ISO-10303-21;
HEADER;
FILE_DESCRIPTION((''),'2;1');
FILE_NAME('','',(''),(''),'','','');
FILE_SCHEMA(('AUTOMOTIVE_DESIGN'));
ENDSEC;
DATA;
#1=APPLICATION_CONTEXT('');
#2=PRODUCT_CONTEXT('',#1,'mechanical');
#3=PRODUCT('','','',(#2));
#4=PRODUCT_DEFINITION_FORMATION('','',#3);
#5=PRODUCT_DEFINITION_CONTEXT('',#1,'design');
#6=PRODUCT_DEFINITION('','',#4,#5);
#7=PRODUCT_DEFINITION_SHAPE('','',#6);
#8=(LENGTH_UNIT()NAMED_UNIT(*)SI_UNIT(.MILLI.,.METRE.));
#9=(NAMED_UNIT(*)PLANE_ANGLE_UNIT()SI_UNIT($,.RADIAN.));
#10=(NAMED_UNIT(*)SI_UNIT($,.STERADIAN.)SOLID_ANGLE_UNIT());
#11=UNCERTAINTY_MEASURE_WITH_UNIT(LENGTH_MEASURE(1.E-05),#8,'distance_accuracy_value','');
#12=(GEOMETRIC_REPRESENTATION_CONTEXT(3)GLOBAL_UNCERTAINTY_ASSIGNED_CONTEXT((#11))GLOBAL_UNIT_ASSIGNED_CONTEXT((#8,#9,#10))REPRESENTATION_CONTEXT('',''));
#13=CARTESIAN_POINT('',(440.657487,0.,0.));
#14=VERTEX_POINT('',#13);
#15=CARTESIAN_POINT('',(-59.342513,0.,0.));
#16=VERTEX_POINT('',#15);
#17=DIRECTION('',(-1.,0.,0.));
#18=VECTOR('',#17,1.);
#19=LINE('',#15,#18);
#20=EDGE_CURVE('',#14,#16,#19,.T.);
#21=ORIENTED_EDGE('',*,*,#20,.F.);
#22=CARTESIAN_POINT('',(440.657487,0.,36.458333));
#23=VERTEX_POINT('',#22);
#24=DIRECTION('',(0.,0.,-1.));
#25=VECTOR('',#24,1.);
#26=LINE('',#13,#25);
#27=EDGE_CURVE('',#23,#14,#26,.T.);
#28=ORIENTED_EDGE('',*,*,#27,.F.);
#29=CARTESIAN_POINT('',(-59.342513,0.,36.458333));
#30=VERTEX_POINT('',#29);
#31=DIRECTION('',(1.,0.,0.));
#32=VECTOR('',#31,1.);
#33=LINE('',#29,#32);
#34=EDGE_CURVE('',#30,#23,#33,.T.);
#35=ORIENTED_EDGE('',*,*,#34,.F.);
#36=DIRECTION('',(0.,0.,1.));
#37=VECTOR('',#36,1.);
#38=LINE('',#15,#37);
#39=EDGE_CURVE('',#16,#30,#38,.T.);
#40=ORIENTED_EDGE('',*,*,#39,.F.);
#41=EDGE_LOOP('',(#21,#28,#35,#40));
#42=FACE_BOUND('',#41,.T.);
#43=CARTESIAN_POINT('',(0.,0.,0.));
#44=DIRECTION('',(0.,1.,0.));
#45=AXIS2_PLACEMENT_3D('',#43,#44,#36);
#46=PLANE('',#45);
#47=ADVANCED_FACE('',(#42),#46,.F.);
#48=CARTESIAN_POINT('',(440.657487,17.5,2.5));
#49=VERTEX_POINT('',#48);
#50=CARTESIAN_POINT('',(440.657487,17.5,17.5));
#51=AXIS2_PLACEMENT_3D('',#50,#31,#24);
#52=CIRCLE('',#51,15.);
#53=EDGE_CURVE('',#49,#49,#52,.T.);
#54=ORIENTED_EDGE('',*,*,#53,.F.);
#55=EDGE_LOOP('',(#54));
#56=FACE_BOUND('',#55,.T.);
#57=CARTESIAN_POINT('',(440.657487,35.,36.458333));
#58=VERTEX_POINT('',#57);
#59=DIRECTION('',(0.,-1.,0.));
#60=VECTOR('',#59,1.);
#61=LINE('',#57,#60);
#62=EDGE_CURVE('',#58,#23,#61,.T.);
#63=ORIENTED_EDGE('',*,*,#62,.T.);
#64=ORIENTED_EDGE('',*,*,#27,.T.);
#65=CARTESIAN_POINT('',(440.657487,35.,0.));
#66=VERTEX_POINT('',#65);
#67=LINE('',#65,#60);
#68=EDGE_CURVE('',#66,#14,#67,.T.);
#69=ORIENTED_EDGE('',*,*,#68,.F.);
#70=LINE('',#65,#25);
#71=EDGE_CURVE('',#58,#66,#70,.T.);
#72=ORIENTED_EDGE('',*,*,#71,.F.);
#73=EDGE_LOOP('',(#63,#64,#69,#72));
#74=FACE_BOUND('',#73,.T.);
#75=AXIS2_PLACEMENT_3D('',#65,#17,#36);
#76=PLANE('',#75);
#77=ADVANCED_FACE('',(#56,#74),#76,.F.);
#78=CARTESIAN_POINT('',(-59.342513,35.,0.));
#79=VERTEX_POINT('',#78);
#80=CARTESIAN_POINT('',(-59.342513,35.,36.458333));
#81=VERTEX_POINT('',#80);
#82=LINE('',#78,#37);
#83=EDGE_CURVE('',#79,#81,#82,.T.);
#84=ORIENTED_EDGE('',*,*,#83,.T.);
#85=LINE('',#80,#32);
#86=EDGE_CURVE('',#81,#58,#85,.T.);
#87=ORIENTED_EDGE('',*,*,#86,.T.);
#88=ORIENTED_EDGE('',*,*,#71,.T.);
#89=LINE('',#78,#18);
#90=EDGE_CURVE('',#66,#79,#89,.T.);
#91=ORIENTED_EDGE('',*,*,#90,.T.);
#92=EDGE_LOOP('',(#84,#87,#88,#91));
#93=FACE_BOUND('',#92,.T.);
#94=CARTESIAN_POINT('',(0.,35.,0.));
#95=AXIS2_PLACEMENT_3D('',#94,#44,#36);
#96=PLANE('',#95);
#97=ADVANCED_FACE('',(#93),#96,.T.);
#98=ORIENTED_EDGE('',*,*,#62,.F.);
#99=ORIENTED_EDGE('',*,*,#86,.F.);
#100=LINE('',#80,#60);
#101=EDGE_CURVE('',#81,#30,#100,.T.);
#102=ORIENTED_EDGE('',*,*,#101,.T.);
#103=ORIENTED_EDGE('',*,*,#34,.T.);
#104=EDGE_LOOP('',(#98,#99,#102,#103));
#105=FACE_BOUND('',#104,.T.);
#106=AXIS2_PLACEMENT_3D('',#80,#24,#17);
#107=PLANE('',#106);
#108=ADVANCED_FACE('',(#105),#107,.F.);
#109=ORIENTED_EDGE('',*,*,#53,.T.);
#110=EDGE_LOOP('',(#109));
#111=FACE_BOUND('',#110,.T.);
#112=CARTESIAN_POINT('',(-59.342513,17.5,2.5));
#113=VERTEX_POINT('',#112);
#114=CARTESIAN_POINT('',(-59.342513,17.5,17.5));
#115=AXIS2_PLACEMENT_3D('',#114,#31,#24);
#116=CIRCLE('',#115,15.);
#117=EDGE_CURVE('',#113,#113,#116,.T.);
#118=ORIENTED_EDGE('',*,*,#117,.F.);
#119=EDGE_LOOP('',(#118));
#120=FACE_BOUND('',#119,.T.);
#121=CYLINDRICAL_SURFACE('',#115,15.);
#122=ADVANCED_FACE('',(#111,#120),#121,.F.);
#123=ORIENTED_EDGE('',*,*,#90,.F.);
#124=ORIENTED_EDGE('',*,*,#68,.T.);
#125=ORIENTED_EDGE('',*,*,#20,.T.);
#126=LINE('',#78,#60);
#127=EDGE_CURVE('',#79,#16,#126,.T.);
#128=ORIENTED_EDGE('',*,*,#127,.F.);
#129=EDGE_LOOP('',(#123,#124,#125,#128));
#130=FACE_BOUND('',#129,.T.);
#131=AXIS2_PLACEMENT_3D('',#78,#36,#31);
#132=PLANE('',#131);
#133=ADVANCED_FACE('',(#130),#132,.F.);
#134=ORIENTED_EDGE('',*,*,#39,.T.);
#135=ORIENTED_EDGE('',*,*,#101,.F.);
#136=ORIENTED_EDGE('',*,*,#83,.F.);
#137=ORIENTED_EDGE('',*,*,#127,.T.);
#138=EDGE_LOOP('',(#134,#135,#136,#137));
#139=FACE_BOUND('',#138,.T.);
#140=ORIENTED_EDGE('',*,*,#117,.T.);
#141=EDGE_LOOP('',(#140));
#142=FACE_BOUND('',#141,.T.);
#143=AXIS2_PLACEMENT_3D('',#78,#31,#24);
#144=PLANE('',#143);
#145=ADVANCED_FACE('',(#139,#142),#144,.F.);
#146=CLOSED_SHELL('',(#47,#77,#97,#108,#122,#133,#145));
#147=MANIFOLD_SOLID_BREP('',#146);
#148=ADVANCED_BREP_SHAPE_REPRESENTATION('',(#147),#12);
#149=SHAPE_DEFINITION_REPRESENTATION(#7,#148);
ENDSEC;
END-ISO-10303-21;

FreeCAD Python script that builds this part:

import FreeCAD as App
import Part
import Sketcher


def add_polygon(sketch, points):
    """Adds a closed chain of lines whose ends are joined by coincident constraints."""
    first, n = sketch.GeometryCount, len(points)
    for a, b in zip(points, points[1:] + points[:1]):
        sketch.addGeometry(Part.LineSegment(App.Vector(*a, 0), App.Vector(*b, 0)), False)
    for i in range(n):
        sketch.addConstraint(Sketcher.Constraint("Coincident", first + i, 2, first + (i + 1) % n, 1))

doc = App.newDocument("Part")
body = doc.addObject("PartDesign::Body", "Body")

# Sketch on XZ plane
sketch1 = body.newObject("Sketcher::SketchObject", "Sketch")
sketch1.AttachmentSupport = (doc.getObject("XZ_Plane"), [""])
sketch1.MapMode = "FlatFace"
add_polygon(sketch1, [(-59, 0), (-59, 36), (441, 36), (441, 0)])  # lines 0-3
sketch1.addConstraint(Sketcher.Constraint("Vertical", 0))
sketch1.addConstraint(Sketcher.Constraint("Horizontal", 1))
sketch1.addConstraint(Sketcher.Constraint("Vertical", 2))
sketch1.addConstraint(Sketcher.Constraint("Horizontal", 3))
sketch1.addConstraint(Sketcher.Constraint("PointOnObject", 2, 2, -1))
sketch1.addConstraint(Sketcher.Constraint("DistanceX", 1, 1, 1, 2, 500.0))
sketch1.addConstraint(Sketcher.Constraint("DistanceY", 0, 1, 0, 2, 36.458333))
sketch1.addConstraint(Sketcher.Constraint("DistanceX", 0, 2, -1, 1, 59.342513))
pad1 = body.newObject("PartDesign::Pad", "Pad")
pad1.Profile = sketch1
pad1.Length = 35
pad1.Reversed = True

# Sketch on YZ plane
sketch2 = body.newObject("Sketcher::SketchObject", "Sketch001")
sketch2.AttachmentSupport = (doc.getObject("YZ_Plane"), [""])
sketch2.MapMode = "FlatFace"
sketch2.AttachmentOffset = App.Placement(App.Vector(0, 0, 440.657487), App.Rotation())
sketch2.addGeometry(Part.Circle(App.Vector(18, 18, 0), App.Vector(0, 0, 1), 15), False)
sketch2.addConstraint(Sketcher.Constraint("Diameter", 0, 30.0))
sketch2.addConstraint(Sketcher.Constraint("DistanceX", -1, 1, 0, 3, 17.5))
sketch2.addConstraint(Sketcher.Constraint("DistanceY", -1, 1, 0, 3, 17.5))
pocket1 = body.newObject("PartDesign::Pocket", "Pocket")
pocket1.Profile = sketch2
pocket1.Type = "ThroughAll"

doc.recompute()
